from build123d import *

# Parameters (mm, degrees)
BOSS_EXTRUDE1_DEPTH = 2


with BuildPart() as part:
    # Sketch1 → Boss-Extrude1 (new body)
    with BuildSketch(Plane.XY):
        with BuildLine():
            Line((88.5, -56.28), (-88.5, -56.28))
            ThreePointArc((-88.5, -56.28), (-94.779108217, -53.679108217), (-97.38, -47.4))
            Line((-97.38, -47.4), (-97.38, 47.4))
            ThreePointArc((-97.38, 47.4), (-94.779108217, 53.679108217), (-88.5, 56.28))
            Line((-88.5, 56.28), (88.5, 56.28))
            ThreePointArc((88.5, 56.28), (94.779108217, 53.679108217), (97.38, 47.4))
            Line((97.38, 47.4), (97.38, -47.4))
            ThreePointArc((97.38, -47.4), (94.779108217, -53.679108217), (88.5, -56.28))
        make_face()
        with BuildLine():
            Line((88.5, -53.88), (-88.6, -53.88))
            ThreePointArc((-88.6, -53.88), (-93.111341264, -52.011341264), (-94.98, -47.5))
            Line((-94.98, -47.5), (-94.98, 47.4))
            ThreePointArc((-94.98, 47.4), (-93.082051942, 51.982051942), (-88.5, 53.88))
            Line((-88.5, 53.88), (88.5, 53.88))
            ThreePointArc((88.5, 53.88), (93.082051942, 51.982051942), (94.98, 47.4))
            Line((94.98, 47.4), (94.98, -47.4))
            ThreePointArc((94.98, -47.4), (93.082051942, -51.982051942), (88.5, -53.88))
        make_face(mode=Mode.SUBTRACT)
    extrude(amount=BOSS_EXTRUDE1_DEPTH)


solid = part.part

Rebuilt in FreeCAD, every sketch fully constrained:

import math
import FreeCAD as App
import Part
import Sketcher

V = App.Vector

doc = App.newDocument("Part")
body = doc.addObject("PartDesign::Body", "Body")

# Sketch on XY plane
sketch1 = body.newObject("Sketcher::SketchObject", "Sketch")
sketch1.AttachmentSupport = (doc.getObject("XY_Plane"), [""])
sketch1.MapMode = "FlatFace"
sketch1.addGeometry([
    Part.LineSegment(V(-88, -56, 0), V(88, -56, 0)),  # 0
    Part.ArcOfCircle(Part.Circle(V(88, -47, 0), V(0, 0, 1), 9), math.radians(-90), math.radians(0)),  # 1
    Part.LineSegment(V(97, -47, 0), V(97, 47, 0)),  # 2
    Part.ArcOfCircle(Part.Circle(V(88, 47, 0), V(0, 0, 1), 9), math.radians(0), math.radians(90)),  # 3
    Part.LineSegment(V(88, 56, 0), V(-88, 56, 0)),  # 4
    Part.ArcOfCircle(Part.Circle(V(-88, 47, 0), V(0, 0, 1), 9), math.radians(90), math.radians(180)),  # 5
    Part.LineSegment(V(-97, 47, 0), V(-97, -47, 0)),  # 6
    Part.ArcOfCircle(Part.Circle(V(-88, -47, 0), V(0, 0, 1), 9), math.radians(180), math.radians(270)),  # 7
    Part.LineSegment(V(88, -54, 0), V(-89, -54, 0)),  # 8
    Part.ArcOfCircle(Part.Circle(V(-89, -48, 0), V(0, 0, 1), 6), math.radians(180), math.radians(270)),  # 9
    Part.LineSegment(V(-95, -48, 0), V(-95, 47, 0)),  # 10
    Part.ArcOfCircle(Part.Circle(V(-88, 47, 0), V(0, 0, 1), 6), math.radians(90), math.radians(180)),  # 11
    Part.LineSegment(V(-88, 54, 0), V(88, 54, 0)),  # 12
    Part.ArcOfCircle(Part.Circle(V(88, 47, 0), V(0, 0, 1), 6), math.radians(0), math.radians(90)),  # 13
    Part.LineSegment(V(95, 47, 0), V(95, -47, 0)),  # 14
    Part.ArcOfCircle(Part.Circle(V(88, -47, 0), V(0, 0, 1), 6), math.radians(-90), math.radians(0)),  # 15
], False)
sketch1.addConstraint([
    Sketcher.Constraint("Tangent", 0, 2, 1, 1),
    Sketcher.Constraint("Tangent", 1, 2, 2, 1),
    Sketcher.Constraint("Tangent", 2, 2, 3, 1),
    Sketcher.Constraint("Tangent", 3, 2, 4, 1),
    Sketcher.Constraint("Tangent", 4, 2, 5, 1),
    Sketcher.Constraint("Tangent", 5, 2, 6, 1),
    Sketcher.Constraint("Tangent", 6, 2, 7, 1),
    Sketcher.Constraint("Tangent", 7, 2, 0, 1),
    Sketcher.Constraint("Tangent", 8, 2, 9, 2),
    Sketcher.Constraint("Tangent", 9, 1, 10, 1),
    Sketcher.Constraint("Tangent", 10, 2, 11, 2),
    Sketcher.Constraint("Tangent", 11, 1, 12, 1),
    Sketcher.Constraint("Tangent", 12, 2, 13, 2),
    Sketcher.Constraint("Tangent", 13, 1, 14, 1),
    Sketcher.Constraint("Tangent", 14, 2, 15, 2),
    Sketcher.Constraint("Tangent", 15, 1, 8, 1),
    Sketcher.Constraint("Horizontal", 0),
    Sketcher.Constraint("Vertical", 2),
    Sketcher.Constraint("Horizontal", 4),
    Sketcher.Constraint("Vertical", 6),
    Sketcher.Constraint("Horizontal", 8),
    Sketcher.Constraint("Vertical", 10),
    Sketcher.Constraint("Horizontal", 12),
    Sketcher.Constraint("Vertical", 14),
    Sketcher.Constraint("Coincident", 11, 3, 5, 3),
    Sketcher.Constraint("Coincident", 13, 3, 3, 3),
    Sketcher.Constraint("Coincident", 15, 3, 1, 3),
    Sketcher.Constraint("Equal", 1, 3),
    Sketcher.Constraint("Equal", 3, 5),
    Sketcher.Constraint("Equal", 5, 7),
    Sketcher.Constraint("Symmetric", 1, 3, 5, 3, -1, 1),
    Sketcher.Constraint("DistanceX", 0, 1, 0, 2, 177.0),
    Sketcher.Constraint("Radius", 1, 8.88),
    Sketcher.Constraint("Radius", 9, 6.38),
    Sketcher.Constraint("Radius", 11, 6.48),
    Sketcher.Constraint("DistanceY", 2, 1, 2, 2, 94.8),
])
pad1 = body.newObject("PartDesign::Pad", "Pad")
pad1.Profile = sketch1
pad1.Length = 2

doc.recompute()
